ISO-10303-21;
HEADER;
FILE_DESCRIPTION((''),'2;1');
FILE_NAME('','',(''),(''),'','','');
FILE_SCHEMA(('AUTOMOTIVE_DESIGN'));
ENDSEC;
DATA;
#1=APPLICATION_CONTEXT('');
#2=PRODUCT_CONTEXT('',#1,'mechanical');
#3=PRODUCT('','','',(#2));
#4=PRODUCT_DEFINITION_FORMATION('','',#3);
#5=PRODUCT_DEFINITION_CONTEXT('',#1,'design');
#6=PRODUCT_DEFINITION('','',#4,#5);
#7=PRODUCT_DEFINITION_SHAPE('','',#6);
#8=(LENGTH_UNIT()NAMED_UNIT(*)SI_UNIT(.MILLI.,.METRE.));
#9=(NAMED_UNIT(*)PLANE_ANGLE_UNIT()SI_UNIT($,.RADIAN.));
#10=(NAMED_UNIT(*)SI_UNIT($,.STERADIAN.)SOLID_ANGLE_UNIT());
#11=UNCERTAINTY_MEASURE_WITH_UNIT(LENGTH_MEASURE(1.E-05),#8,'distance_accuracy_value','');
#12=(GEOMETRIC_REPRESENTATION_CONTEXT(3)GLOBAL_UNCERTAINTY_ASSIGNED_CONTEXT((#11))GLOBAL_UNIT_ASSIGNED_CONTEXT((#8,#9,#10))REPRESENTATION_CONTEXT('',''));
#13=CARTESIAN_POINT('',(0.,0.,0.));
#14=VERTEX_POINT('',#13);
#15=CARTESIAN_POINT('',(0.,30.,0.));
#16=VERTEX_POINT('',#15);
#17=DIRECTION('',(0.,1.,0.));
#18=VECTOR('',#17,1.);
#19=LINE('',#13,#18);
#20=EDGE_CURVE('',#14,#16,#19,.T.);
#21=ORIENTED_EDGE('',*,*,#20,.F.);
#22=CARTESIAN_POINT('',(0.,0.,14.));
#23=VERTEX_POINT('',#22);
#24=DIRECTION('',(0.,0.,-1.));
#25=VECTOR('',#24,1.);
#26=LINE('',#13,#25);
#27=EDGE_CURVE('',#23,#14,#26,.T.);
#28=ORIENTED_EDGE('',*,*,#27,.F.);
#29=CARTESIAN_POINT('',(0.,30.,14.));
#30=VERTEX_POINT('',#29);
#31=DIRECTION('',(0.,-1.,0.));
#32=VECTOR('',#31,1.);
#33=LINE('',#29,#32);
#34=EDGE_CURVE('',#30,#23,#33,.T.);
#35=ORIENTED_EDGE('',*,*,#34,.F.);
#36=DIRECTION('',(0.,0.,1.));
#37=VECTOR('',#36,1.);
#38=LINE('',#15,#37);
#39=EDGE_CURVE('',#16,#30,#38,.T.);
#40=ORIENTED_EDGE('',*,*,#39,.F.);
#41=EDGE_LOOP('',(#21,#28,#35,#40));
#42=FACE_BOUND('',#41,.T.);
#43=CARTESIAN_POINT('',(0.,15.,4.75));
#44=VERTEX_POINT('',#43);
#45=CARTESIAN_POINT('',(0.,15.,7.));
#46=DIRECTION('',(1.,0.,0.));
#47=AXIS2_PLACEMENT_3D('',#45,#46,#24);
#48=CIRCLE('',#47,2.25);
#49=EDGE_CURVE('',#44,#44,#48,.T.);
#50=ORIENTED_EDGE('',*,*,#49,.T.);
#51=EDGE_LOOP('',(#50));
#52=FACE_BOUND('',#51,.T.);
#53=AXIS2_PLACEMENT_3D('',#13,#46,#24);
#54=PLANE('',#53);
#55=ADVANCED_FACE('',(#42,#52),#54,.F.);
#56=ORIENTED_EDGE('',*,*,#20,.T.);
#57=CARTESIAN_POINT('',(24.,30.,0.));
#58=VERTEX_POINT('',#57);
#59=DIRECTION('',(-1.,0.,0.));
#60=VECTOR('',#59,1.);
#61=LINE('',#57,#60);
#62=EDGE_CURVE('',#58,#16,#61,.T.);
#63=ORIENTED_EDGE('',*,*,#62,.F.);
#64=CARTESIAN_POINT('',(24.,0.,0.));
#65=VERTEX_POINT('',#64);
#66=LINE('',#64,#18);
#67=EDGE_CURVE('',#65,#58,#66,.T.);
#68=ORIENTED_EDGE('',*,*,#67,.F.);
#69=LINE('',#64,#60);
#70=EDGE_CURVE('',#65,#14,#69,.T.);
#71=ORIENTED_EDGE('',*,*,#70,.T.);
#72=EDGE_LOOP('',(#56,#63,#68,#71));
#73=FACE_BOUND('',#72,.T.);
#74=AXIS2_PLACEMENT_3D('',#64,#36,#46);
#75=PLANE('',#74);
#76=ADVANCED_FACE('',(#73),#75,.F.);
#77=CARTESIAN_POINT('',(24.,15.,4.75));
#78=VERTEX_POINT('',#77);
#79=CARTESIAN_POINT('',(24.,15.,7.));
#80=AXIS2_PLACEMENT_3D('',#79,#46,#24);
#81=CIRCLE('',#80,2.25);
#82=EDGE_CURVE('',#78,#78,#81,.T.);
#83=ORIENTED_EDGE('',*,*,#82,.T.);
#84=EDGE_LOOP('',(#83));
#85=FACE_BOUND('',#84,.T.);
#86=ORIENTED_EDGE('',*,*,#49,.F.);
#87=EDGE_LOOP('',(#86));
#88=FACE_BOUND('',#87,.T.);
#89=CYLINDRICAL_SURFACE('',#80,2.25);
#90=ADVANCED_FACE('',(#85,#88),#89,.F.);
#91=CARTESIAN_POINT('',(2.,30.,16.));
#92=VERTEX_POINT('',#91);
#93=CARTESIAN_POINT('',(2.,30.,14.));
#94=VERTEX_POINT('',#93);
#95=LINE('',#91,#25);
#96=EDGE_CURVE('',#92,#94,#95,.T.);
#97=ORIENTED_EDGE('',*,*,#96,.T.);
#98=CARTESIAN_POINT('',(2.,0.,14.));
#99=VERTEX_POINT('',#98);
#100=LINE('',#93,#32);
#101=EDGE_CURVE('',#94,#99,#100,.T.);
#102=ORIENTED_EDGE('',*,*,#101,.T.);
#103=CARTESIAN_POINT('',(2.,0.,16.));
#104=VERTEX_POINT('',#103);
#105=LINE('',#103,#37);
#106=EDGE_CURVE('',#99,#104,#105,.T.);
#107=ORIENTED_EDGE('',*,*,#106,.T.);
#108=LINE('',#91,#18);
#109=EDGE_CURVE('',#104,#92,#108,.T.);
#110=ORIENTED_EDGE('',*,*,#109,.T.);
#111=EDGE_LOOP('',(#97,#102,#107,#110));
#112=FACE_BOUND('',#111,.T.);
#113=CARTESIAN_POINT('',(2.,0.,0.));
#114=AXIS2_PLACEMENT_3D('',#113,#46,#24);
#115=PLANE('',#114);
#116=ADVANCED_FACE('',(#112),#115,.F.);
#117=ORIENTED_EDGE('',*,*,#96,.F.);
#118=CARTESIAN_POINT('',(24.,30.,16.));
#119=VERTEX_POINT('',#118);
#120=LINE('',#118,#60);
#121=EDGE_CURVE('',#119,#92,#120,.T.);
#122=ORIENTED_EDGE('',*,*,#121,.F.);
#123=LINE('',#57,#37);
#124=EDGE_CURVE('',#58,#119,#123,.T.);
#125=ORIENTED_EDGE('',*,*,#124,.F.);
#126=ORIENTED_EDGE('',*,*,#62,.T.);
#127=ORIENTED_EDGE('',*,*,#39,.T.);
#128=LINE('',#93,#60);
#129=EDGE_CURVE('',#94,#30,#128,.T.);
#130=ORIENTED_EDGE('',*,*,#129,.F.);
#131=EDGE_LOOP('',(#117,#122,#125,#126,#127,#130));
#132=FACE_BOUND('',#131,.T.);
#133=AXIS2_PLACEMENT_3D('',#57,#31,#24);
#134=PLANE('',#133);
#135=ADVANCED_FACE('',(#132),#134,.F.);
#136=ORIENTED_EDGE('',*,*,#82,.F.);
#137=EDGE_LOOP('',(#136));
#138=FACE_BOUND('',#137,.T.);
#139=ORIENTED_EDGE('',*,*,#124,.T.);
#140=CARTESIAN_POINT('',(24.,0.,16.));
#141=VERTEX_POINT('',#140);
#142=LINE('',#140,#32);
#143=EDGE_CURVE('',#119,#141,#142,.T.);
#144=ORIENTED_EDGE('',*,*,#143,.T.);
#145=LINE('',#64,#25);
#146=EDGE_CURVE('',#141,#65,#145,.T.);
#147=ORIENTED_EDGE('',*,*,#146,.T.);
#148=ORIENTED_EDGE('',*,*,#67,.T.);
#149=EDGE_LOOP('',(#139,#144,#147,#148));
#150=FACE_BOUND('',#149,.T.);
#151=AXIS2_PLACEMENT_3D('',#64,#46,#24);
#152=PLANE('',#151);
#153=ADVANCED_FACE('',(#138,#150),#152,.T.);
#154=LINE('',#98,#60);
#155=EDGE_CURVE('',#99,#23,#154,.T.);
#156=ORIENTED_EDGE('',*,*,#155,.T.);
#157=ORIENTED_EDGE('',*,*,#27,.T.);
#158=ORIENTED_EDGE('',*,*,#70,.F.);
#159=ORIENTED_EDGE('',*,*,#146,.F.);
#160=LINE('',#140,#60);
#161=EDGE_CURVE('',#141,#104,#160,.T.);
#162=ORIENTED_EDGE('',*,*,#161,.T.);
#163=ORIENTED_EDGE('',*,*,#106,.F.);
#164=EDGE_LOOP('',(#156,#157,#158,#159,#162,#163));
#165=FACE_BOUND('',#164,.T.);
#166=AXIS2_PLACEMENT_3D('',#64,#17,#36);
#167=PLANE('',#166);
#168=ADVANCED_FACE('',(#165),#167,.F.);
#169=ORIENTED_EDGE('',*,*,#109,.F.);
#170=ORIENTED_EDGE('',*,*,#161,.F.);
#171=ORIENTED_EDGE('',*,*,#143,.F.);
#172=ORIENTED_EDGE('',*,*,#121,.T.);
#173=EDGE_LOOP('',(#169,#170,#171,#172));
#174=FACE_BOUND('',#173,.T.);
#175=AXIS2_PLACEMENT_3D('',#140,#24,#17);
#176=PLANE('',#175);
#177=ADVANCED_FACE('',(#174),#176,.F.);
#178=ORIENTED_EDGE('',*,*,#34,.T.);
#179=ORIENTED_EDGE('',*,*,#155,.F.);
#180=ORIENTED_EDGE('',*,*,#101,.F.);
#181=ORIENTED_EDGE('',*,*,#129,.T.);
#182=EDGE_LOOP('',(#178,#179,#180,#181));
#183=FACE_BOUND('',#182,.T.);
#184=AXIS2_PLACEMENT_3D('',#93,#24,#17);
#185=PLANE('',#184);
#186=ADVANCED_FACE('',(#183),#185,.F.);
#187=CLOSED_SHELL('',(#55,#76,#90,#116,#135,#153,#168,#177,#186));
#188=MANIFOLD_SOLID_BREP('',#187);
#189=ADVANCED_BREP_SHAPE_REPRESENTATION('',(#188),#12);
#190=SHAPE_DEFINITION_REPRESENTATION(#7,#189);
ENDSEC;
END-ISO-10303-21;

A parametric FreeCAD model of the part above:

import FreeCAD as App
import Part
import Sketcher
Q = App.Units.Quantity


def add_polygon(sketch, points):
    """Adds a closed chain of lines whose ends are joined by coincident constraints."""
    first, n = sketch.GeometryCount, len(points)
    for a, b in zip(points, points[1:] + points[:1]):
        sketch.addGeometry(Part.LineSegment(App.Vector(*a, 0), App.Vector(*b, 0)), False)
    for i in range(n):
        sketch.addConstraint(Sketcher.Constraint("Coincident", first + i, 2, first + (i + 1) % n, 1))

doc = App.newDocument("Part")
body = doc.addObject("PartDesign::Body", "Body")

# Sketch on YZ plane
sketch1 = body.newObject("Sketcher::SketchObject", "Sketch")
sketch1.AttachmentSupport = (doc.getObject("YZ_Plane"), [""])
sketch1.MapMode = "FlatFace"
add_polygon(sketch1, [(30, 16), (0, 16), (0, 0), (30, 0)])  # lines 0-3
sketch1.addConstraint(Sketcher.Constraint("Horizontal", 0))
sketch1.addConstraint(Sketcher.Constraint("Vertical", 1))
sketch1.addConstraint(Sketcher.Constraint("Horizontal", 2))
sketch1.addConstraint(Sketcher.Constraint("Vertical", 3))
sketch1.addConstraint(Sketcher.Constraint("Coincident", 1, 2, -1, 1))
sketch1.addConstraint(Sketcher.Constraint("DistanceX", 0, 2, 0, 1, Q("30 mm")))
sketch1.addConstraint(Sketcher.Constraint("DistanceY", 1, 2, 1, 1, Q("16 mm")))
pad1 = body.newObject("PartDesign::Pad", "Pad")
pad1.Profile = sketch1
pad1.Length = 24

# Sketch on YZ plane
sketch2 = body.newObject("Sketcher::SketchObject", "Sketch001")
sketch2.AttachmentSupport = (doc.getObject("YZ_Plane"), [""])
sketch2.MapMode = "FlatFace"
add_polygon(sketch2, [(30, 14), (0, 14), (0, 16), (30, 16)])  # lines 0-3
sketch2.addConstraint(Sketcher.Constraint("Horizontal", 0))
sketch2.addConstraint(Sketcher.Constraint("Vertical", 1))
sketch2.addConstraint(Sketcher.Constraint("Horizontal", 2))
sketch2.addConstraint(Sketcher.Constraint("Vertical", 3))
sketch2.addConstraint(Sketcher.Constraint("PointOnObject", 0, 2, -2))
sketch2.addConstraint(Sketcher.Constraint("DistanceX", 0, 2, 0, 1, Q("30 mm")))
sketch2.addConstraint(Sketcher.Constraint("DistanceY", 1, 1, 1, 2, Q("2 mm")))
sketch2.addConstraint(Sketcher.Constraint("DistanceY", -1, 1, 0, 2, Q("14 mm")))
pocket1 = body.newObject("PartDesign::Pocket", "Pocket")
pocket1.Profile = sketch2
pocket1.Length = 2
pocket1.Reversed = True

# Sketch on YZ plane
sketch3 = body.newObject("Sketcher::SketchObject", "Sketch002")
sketch3.AttachmentSupport = (doc.getObject("YZ_Plane"), [""])
sketch3.MapMode = "FlatFace"
sketch3.AttachmentOffset = App.Placement(App.Vector(0, 0, 24), App.Rotation())
sketch3.addGeometry(Part.Circle(App.Vector(15, 7, 0), App.Vector(0, 0, 1), 2.2), False)
sketch3.addConstraint(Sketcher.Constraint("Diameter", 0, Q("4.5 mm")))
sketch3.addConstraint(Sketcher.Constraint("DistanceX", -1, 1, 0, 3, Q("15 mm")))
sketch3.addConstraint(Sketcher.Constraint("DistanceY", -1, 1, 0, 3, Q("7 mm")))
doc.recompute()
hole = body.newObject("PartDesign::Hole", "Hole")
hole.Profile = sketch3
hole.ThreadType = "None"
hole.Diameter = 4.5
hole.DepthType = "ThroughAll"

doc.recompute()
